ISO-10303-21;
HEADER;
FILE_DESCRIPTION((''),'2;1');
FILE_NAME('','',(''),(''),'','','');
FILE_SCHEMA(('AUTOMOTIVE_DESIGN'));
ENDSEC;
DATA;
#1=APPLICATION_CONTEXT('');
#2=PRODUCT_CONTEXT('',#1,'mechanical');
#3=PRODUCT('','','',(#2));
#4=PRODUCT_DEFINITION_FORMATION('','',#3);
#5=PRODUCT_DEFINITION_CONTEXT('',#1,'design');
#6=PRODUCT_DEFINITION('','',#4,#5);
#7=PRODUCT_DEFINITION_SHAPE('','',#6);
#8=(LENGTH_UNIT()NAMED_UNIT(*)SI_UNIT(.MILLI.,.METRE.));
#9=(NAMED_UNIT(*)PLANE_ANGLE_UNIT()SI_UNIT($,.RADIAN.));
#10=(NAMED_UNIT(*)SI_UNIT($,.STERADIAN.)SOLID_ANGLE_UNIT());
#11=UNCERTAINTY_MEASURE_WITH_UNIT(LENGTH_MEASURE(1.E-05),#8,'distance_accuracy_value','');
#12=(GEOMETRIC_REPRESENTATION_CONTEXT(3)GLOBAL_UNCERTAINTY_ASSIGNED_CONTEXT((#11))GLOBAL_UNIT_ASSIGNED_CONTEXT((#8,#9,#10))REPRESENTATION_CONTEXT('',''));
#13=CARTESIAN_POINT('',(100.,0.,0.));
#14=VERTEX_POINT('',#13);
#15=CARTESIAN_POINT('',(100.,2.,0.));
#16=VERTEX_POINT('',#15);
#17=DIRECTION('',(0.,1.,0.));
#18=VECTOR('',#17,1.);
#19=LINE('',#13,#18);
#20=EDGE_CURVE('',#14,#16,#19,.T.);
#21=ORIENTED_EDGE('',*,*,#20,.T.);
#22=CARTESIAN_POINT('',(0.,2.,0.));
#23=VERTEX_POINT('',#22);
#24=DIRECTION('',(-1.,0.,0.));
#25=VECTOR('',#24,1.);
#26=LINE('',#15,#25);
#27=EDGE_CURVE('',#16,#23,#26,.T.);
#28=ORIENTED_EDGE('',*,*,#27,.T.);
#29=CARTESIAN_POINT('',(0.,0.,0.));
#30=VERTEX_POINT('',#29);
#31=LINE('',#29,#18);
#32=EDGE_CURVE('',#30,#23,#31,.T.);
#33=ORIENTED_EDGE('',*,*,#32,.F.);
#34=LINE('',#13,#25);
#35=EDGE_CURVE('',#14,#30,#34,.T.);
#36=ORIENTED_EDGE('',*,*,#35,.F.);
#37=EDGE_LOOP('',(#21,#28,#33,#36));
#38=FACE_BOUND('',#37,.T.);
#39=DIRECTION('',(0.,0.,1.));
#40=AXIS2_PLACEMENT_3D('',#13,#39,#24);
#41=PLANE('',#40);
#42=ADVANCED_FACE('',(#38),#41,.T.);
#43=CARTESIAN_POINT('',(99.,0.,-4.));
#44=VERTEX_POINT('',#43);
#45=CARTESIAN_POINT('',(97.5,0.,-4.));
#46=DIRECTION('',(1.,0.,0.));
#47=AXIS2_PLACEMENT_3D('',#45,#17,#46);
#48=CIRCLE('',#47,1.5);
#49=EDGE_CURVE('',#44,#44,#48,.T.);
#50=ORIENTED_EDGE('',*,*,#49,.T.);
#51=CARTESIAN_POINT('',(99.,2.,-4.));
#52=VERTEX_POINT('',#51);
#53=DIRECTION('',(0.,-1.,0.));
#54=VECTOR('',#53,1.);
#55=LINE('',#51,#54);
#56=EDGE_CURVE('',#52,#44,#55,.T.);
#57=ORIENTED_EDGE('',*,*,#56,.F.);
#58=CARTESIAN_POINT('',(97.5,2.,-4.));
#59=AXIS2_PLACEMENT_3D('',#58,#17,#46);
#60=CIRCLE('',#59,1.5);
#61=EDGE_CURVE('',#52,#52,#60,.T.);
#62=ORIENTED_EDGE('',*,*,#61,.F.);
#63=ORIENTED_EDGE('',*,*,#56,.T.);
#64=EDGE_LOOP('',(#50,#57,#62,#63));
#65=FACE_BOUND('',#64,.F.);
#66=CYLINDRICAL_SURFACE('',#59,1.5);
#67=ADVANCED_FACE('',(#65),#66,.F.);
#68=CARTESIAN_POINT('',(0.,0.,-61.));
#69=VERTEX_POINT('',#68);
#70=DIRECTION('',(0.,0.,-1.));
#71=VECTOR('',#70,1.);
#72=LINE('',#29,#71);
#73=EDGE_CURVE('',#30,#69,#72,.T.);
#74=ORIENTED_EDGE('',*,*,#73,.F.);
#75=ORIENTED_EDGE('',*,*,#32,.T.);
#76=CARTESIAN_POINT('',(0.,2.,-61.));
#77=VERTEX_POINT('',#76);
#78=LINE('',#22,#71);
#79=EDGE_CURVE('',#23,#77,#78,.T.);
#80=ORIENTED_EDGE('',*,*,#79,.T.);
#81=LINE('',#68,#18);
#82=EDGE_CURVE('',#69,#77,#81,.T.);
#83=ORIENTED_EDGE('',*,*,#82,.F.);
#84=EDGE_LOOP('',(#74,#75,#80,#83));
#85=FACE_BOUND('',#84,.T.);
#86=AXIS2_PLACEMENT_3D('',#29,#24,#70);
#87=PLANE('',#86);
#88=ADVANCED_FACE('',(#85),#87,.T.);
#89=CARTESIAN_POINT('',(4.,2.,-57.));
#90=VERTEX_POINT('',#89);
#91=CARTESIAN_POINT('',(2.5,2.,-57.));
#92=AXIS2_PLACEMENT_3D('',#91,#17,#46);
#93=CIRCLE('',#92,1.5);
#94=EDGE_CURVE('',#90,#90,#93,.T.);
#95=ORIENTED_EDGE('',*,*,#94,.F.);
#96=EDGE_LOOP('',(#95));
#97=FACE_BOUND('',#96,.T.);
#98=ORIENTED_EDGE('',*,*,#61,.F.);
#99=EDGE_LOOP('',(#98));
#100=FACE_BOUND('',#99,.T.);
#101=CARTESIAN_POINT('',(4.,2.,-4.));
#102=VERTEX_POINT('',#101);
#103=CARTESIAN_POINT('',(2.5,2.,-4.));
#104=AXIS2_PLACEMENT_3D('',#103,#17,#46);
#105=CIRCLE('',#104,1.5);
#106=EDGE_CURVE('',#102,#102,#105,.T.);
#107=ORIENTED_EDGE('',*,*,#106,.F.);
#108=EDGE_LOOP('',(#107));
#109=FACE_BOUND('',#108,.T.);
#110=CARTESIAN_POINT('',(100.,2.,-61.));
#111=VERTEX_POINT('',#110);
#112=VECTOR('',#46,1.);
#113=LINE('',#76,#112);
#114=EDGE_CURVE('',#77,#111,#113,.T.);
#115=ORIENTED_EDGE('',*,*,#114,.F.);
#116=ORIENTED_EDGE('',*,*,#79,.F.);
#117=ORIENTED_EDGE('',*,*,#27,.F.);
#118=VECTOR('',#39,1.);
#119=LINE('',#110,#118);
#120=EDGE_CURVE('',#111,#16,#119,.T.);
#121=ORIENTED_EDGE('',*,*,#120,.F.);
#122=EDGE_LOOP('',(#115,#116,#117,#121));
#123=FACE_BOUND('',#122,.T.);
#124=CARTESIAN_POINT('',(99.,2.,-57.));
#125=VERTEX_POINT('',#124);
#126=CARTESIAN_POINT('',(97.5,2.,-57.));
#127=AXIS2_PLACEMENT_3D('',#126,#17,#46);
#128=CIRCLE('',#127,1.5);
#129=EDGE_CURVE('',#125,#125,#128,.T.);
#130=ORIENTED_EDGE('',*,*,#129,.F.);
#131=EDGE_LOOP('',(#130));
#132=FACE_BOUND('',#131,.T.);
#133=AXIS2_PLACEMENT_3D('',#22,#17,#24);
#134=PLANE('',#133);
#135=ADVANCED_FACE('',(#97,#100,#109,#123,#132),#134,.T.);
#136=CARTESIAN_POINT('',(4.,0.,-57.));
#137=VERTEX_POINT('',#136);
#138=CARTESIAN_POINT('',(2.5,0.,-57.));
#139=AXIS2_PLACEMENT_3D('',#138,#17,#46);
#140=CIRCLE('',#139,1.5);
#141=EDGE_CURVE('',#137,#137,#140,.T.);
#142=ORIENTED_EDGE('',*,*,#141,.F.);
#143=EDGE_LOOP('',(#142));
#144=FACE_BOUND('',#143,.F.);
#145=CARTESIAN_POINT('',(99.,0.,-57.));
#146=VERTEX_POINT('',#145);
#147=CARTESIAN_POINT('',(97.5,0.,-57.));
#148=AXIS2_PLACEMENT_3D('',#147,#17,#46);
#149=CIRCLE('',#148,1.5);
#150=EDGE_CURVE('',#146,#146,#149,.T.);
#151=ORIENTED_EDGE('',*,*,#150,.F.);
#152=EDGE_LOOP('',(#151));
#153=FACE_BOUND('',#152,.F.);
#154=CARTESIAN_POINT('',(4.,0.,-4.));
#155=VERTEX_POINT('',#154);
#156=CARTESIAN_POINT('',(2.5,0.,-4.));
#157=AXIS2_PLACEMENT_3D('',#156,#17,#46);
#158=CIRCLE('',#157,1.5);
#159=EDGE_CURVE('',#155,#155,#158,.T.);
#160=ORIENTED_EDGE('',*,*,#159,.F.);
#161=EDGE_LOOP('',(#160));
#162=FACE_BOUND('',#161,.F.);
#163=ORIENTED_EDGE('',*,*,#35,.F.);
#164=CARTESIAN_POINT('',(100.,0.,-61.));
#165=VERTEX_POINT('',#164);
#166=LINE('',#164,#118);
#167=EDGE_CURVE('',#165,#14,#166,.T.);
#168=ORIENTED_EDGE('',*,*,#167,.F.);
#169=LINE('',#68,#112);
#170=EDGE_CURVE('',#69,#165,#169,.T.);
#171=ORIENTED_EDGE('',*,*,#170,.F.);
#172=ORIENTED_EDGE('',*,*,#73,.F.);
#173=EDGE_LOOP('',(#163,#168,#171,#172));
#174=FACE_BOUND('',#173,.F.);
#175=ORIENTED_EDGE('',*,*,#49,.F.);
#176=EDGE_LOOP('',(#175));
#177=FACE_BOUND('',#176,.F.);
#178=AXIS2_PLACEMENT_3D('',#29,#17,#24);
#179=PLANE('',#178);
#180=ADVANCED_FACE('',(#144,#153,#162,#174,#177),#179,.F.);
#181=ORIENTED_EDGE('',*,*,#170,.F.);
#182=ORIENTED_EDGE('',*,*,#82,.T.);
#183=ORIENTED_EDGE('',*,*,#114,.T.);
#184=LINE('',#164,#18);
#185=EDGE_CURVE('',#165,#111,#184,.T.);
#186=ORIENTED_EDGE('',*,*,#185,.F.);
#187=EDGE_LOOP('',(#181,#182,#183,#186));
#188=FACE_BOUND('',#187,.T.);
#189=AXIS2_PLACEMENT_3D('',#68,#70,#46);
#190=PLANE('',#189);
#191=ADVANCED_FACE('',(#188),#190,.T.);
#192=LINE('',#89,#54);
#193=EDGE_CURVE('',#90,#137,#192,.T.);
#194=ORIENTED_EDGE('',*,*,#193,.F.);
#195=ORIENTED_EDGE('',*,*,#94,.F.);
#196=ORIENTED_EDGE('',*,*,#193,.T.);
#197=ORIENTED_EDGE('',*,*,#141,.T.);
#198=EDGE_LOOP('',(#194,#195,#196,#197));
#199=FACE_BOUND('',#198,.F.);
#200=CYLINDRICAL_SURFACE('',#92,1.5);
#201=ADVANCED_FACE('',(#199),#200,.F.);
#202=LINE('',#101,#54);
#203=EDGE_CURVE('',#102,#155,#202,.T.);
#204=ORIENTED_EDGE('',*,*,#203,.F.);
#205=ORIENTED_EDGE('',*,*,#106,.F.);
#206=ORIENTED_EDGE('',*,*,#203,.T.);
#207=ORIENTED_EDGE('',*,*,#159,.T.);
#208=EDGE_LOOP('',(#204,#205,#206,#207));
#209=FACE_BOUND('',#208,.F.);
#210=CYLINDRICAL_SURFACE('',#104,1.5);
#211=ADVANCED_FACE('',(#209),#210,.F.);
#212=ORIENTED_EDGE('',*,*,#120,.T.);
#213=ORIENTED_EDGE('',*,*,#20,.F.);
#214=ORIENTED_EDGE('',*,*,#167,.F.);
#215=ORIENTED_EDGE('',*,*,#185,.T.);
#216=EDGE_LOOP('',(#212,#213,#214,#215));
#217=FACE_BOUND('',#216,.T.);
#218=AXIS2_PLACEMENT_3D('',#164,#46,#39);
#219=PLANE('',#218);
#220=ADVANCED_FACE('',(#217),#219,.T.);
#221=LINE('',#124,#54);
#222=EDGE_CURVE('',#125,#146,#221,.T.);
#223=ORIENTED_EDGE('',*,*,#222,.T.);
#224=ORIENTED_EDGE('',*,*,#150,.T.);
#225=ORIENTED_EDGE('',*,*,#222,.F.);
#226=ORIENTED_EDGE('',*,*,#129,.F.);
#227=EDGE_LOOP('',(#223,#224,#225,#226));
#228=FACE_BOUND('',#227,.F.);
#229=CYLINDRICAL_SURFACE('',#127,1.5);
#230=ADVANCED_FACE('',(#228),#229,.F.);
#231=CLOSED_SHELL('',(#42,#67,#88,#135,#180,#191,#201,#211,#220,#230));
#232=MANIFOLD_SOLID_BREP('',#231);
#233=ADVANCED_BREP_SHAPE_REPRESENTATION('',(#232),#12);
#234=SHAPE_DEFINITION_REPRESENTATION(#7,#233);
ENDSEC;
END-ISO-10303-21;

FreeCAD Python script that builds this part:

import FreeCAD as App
import Part
import Sketcher

V = App.Vector

doc = App.newDocument("Part")
body = doc.addObject("PartDesign::Body", "Body")

# Sketch on XZ plane
sketch1 = doc.addObject("Sketcher::SketchObject", "Sketch")
body.addObject(sketch1)
sketch1.AttachmentSupport = (doc.XZ_Plane, [""])
sketch1.MapMode = "FlatFace"
sketch1.addGeometry(Part.LineSegment(V(100, -61, 0), V(0, -61, 0)), False)
sketch1.addGeometry(Part.LineSegment(V(0, -61, 0), V(0, 0, 0)), False)
sketch1.addGeometry(Part.LineSegment(V(0, 0, 0), V(100, 0, 0)), False)
sketch1.addGeometry(Part.LineSegment(V(100, 0, 0), V(100, -61, 0)), False)
sketch1.addConstraint(Sketcher.Constraint("Coincident", 0, 2, 1, 1))
sketch1.addConstraint(Sketcher.Constraint("Coincident", 1, 2, 2, 1))
sketch1.addConstraint(Sketcher.Constraint("Coincident", 2, 2, 3, 1))
sketch1.addConstraint(Sketcher.Constraint("Coincident", 3, 2, 0, 1))
sketch1.addConstraint(Sketcher.Constraint("Horizontal", 0))
sketch1.addConstraint(Sketcher.Constraint("Vertical", 1))
sketch1.addConstraint(Sketcher.Constraint("Horizontal", 2))
sketch1.addConstraint(Sketcher.Constraint("Vertical", 3))
sketch1.addConstraint(Sketcher.Constraint("Coincident", 1, 2, -1, 1))
sketch1.addConstraint(Sketcher.Constraint("DistanceX", 0, 2, 0, 1, 100.0))
sketch1.addConstraint(Sketcher.Constraint("DistanceY", 1, 1, 1, 2, 61.0))
pad1 = doc.addObject("PartDesign::Pad", "Pad")
body.addObject(pad1)
pad1.Profile = sketch1
pad1.Length = 2
pad1.Reversed = True

# Sketch on XZ plane
sketch2 = doc.addObject("Sketcher::SketchObject", "Sketch001")
body.addObject(sketch2)
sketch2.AttachmentSupport = (doc.XZ_Plane, [""])
sketch2.MapMode = "FlatFace"
sketch2.AttachmentOffset = App.Placement(V(0, 0, -2), App.Rotation())
sketch2.addGeometry(Part.Circle(V(97.5, -57, 0), V(0, 0, 1), 1.5), False)
sketch2.addGeometry(Part.Circle(V(97.5, -4, 0), V(0, 0, 1), 1.5), False)
sketch2.addGeometry(Part.Circle(V(2.5, -4, 0), V(0, 0, 1), 1.5), False)
sketch2.addGeometry(Part.Circle(V(2.5, -57, 0), V(0, 0, 1), 1.5), False)
sketch2.addConstraint(Sketcher.Constraint("Equal", 0, 1))
sketch2.addConstraint(Sketcher.Constraint("Equal", 1, 2))
sketch2.addConstraint(Sketcher.Constraint("Equal", 2, 3))
sketch2.addConstraint(Sketcher.Constraint("Horizontal", 1, 3, 2, 3))
sketch2.addConstraint(Sketcher.Constraint("Horizontal", 0, 3, 3, 3))
sketch2.addConstraint(Sketcher.Constraint("Vertical", 0, 3, 1, 3))
sketch2.addConstraint(Sketcher.Constraint("Vertical", 2, 3, 3, 3))
sketch2.addConstraint(Sketcher.Constraint("Diameter", 0, 3.0))
sketch2.addConstraint(Sketcher.Constraint("DistanceY", 1, 3, -1, 1, 4.0))
sketch2.addConstraint(Sketcher.Constraint("DistanceX", -1, 1, 2, 3, 2.5))
sketch2.addConstraint(Sketcher.Constraint("DistanceY", 0, 3, -1, 1, 57.0))
sketch2.addConstraint(Sketcher.Constraint("DistanceX", 2, 3, 1, 3, 95.0))
pocket1 = doc.addObject("PartDesign::Pocket", "Pocket")
body.addObject(pocket1)
pocket1.Profile = sketch2
pocket1.Length = 4
pocket1.Reversed = True

doc.recompute()
